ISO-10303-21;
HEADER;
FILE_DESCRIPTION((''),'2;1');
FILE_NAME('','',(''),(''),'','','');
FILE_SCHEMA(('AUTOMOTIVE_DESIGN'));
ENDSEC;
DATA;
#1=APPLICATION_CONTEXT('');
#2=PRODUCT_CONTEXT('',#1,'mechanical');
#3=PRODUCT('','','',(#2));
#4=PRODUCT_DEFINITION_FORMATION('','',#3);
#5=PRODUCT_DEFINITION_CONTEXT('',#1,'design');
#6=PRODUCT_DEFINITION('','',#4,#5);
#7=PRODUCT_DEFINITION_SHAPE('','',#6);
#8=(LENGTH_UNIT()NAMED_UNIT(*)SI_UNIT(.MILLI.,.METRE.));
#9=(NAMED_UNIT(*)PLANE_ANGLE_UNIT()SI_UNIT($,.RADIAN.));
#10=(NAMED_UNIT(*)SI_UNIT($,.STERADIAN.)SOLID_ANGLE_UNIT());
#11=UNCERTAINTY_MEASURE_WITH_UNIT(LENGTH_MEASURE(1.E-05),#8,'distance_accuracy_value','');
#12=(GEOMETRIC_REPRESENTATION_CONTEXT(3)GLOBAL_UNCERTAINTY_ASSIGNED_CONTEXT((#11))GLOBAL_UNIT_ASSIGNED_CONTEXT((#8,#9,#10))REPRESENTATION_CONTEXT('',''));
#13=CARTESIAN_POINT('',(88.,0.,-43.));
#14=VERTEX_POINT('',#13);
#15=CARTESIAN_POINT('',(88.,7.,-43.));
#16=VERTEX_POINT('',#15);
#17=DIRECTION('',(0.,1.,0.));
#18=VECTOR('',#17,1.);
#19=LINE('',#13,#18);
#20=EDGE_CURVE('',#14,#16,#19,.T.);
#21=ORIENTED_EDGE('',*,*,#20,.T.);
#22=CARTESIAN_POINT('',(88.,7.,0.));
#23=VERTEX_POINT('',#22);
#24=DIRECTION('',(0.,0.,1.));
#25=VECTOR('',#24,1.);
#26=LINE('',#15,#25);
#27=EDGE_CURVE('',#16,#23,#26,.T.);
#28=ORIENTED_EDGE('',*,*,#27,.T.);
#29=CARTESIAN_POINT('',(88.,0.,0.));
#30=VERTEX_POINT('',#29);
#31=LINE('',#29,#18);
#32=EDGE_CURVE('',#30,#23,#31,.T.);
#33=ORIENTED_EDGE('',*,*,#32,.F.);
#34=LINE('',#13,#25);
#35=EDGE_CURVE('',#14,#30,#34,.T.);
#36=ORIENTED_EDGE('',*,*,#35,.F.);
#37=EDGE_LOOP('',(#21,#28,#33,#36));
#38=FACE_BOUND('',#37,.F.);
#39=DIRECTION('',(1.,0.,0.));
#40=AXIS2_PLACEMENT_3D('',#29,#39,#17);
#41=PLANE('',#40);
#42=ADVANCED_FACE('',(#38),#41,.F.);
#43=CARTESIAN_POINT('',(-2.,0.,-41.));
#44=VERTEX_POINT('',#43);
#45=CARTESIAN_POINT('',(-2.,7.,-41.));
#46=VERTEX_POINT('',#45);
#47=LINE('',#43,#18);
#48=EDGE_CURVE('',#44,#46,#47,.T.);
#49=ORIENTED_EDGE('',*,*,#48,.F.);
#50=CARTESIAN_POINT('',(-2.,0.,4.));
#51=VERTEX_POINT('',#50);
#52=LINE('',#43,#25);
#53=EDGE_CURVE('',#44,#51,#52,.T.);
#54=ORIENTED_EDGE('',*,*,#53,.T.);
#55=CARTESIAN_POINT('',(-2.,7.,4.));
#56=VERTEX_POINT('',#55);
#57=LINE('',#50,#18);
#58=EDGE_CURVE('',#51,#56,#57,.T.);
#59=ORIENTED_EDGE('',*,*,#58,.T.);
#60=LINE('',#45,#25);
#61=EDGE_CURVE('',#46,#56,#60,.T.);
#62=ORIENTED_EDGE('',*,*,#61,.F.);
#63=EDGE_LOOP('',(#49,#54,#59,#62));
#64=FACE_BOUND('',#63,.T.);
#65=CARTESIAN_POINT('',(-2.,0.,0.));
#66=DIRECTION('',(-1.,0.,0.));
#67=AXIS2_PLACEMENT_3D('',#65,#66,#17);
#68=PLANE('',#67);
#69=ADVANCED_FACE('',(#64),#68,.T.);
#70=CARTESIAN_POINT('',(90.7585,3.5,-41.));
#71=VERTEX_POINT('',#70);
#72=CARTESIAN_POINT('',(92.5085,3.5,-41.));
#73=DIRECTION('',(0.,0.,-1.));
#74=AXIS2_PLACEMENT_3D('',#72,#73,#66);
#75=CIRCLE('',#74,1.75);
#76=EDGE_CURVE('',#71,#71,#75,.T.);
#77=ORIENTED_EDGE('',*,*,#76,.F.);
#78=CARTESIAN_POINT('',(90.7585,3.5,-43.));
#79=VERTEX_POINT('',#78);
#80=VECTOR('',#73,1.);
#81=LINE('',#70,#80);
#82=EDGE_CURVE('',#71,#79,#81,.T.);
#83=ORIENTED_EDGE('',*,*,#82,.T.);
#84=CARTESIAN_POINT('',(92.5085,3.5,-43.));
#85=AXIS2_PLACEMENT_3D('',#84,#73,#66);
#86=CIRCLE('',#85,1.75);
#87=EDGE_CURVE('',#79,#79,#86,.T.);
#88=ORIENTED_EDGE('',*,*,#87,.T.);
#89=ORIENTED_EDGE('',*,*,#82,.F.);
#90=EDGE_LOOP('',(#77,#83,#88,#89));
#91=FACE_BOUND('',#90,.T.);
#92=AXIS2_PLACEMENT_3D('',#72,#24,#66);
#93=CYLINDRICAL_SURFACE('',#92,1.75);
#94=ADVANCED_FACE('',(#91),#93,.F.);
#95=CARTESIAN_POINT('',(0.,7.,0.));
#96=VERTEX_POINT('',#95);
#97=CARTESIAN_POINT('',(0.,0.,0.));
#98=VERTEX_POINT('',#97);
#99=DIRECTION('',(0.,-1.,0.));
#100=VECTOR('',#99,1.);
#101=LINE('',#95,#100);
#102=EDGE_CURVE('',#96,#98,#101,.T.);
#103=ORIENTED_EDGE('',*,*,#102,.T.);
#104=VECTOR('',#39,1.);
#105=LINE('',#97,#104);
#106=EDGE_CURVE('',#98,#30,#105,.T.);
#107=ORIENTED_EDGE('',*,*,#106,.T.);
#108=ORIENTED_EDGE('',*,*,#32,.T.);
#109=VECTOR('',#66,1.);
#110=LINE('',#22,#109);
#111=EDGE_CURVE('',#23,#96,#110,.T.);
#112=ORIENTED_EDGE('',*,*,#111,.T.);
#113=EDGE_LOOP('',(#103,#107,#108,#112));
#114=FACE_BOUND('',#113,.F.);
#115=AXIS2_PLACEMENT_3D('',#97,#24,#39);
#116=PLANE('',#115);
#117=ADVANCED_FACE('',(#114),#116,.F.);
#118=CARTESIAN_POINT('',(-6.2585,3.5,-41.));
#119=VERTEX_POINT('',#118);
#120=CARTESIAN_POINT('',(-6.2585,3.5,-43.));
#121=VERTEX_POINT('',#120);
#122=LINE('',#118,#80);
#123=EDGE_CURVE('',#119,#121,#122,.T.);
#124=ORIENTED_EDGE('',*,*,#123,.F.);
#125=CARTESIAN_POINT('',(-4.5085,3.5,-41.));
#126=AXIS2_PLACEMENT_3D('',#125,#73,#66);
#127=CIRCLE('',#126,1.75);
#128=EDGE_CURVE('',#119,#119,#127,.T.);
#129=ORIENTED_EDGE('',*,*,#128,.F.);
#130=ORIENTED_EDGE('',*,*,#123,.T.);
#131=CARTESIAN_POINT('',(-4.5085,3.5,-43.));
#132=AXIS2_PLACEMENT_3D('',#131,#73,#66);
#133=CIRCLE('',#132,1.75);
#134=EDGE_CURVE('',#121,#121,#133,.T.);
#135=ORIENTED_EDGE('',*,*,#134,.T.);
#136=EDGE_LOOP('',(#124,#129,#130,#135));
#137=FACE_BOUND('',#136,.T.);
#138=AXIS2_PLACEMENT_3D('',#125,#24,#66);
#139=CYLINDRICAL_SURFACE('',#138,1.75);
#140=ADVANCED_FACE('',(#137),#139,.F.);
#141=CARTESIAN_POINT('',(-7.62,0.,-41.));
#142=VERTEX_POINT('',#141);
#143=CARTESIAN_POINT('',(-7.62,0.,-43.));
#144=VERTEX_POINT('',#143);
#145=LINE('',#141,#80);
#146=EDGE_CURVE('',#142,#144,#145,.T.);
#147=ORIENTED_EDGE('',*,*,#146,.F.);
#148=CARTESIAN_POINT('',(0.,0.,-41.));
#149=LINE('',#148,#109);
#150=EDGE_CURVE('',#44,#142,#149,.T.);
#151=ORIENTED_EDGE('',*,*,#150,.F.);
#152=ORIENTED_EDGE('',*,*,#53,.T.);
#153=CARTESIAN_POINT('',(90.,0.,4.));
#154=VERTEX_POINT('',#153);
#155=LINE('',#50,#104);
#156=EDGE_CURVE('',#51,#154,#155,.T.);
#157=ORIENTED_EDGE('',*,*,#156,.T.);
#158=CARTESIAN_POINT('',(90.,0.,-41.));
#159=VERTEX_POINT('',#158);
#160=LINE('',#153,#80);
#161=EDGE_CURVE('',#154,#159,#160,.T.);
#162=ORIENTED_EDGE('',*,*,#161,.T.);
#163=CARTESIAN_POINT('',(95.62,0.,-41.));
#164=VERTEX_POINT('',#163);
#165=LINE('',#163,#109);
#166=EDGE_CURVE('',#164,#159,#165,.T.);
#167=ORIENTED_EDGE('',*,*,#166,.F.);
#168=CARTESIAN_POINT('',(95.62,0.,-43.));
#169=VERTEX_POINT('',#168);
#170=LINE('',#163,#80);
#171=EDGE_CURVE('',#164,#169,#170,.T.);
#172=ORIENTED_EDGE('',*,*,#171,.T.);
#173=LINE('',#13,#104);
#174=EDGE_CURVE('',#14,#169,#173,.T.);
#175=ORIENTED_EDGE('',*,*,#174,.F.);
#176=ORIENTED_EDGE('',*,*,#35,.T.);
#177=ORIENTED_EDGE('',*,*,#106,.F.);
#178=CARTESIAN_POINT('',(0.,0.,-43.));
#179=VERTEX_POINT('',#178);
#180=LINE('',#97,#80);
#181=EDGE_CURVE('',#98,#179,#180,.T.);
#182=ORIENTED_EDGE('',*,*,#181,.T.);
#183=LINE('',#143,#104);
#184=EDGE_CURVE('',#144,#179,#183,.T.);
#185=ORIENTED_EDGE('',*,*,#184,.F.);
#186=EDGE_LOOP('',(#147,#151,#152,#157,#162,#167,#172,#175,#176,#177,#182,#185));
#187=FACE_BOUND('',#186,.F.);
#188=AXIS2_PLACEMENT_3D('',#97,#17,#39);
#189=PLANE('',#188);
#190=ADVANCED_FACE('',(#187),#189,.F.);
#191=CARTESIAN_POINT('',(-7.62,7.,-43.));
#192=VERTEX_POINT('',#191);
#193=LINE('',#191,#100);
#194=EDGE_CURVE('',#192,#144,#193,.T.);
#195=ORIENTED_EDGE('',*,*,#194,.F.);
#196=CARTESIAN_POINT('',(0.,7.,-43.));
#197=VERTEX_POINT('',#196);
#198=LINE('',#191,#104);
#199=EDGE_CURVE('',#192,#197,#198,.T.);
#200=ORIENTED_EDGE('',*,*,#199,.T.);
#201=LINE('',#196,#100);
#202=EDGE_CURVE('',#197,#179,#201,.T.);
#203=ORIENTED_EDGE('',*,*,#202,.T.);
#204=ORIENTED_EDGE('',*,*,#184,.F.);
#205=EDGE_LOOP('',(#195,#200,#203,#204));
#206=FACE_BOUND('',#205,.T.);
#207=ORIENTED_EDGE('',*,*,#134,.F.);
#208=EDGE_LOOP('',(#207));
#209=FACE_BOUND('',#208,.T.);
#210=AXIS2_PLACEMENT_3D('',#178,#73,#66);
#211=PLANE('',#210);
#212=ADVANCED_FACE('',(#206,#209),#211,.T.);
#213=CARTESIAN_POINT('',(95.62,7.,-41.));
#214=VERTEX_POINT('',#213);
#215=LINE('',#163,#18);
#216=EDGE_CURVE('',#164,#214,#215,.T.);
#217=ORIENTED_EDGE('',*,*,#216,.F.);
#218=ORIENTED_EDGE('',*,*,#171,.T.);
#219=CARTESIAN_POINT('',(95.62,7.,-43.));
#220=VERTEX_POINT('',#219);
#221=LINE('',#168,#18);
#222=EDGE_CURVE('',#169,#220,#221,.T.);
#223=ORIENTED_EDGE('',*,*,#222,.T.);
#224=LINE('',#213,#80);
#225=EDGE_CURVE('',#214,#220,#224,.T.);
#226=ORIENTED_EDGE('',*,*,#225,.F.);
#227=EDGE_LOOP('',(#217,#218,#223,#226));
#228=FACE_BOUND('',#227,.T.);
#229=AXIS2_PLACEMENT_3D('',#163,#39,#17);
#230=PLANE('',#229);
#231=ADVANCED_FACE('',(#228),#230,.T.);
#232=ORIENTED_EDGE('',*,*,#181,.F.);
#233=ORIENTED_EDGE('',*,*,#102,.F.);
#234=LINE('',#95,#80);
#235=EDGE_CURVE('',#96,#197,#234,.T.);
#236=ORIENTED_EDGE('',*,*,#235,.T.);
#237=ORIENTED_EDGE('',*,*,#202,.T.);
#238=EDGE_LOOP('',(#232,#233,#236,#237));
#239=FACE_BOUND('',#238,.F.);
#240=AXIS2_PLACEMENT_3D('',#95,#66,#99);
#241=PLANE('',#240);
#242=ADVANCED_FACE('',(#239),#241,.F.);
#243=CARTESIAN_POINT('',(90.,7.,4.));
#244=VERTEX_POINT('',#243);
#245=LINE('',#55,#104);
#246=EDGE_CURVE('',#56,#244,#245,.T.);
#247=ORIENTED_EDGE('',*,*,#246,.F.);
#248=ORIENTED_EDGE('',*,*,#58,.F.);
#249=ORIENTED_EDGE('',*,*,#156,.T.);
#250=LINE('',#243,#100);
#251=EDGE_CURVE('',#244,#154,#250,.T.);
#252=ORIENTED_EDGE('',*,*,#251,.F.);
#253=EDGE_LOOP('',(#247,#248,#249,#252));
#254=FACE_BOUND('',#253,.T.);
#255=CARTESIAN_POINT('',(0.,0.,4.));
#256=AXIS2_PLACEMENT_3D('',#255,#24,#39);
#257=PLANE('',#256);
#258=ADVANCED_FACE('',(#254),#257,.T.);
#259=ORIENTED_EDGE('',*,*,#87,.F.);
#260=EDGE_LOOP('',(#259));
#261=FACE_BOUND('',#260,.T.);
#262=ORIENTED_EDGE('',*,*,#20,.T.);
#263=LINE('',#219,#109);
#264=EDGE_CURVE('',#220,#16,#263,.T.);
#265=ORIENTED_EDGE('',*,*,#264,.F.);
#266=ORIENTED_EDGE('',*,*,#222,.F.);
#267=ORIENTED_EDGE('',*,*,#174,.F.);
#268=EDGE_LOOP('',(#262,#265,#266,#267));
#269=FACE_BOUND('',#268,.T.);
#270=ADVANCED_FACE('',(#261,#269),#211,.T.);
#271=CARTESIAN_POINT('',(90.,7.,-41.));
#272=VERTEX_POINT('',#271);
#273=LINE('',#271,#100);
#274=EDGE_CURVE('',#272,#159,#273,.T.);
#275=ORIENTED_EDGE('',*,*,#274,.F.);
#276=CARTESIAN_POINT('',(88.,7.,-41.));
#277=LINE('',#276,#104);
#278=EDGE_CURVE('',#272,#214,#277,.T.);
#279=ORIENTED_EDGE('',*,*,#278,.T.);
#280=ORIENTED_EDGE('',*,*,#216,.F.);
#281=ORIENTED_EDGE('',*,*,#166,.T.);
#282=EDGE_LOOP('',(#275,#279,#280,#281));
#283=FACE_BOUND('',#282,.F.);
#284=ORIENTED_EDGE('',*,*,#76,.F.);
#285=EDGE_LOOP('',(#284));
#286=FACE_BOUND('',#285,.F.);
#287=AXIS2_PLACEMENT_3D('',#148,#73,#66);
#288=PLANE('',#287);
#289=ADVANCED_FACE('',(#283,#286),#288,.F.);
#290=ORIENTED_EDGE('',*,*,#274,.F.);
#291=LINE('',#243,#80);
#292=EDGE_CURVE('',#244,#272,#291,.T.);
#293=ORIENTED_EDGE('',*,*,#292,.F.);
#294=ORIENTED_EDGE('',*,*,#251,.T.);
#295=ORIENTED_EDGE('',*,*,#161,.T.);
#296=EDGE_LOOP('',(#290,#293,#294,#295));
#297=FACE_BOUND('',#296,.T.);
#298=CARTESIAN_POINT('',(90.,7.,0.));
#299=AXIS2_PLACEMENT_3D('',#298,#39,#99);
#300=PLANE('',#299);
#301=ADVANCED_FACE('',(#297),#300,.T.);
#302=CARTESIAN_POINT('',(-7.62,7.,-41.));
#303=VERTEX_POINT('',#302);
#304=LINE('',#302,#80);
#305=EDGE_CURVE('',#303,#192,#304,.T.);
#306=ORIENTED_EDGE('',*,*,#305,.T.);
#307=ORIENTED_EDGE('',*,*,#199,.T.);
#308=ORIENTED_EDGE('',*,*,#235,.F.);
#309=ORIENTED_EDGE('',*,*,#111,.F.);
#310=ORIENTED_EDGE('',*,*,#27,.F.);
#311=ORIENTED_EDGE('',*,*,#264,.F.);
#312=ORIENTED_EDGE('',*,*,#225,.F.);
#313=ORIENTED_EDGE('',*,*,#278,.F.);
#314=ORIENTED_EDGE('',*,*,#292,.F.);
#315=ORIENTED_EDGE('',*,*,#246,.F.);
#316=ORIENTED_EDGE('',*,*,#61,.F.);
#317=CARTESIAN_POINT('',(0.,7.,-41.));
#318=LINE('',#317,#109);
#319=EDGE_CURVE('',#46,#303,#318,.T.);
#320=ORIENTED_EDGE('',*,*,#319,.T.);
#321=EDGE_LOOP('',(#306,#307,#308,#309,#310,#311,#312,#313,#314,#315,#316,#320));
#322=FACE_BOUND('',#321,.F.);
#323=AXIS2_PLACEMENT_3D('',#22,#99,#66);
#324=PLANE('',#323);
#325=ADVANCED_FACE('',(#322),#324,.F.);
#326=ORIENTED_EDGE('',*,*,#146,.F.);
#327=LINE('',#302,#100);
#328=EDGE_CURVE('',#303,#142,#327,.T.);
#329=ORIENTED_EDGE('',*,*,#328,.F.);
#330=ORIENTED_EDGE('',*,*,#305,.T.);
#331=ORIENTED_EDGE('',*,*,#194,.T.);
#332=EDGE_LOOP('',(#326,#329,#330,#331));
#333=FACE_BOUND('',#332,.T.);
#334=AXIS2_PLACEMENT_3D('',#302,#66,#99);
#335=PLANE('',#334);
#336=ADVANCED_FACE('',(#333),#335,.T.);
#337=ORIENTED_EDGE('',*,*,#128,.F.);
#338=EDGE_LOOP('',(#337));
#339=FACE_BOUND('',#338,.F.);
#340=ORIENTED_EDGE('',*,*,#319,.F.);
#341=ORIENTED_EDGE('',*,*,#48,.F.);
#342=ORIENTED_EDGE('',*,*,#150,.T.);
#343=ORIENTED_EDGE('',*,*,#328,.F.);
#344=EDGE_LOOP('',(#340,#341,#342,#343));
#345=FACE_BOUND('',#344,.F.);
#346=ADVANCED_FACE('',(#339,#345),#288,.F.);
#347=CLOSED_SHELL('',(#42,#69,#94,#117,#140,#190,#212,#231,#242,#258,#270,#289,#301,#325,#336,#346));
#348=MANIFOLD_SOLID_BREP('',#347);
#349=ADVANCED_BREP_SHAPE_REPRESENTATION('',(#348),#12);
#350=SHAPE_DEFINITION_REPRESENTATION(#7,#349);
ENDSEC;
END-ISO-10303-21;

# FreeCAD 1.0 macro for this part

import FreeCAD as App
import Part
import Sketcher

doc = App.newDocument("Part")
body = doc.addObject("PartDesign::Body", "Body")
body.AllowCompound = True

sketch1 = doc.addObject("Sketcher::SketchObject", "Sketch")
body.addObject(sketch1)
sketch1.AttachmentSupport = (doc.XY_Plane, [""])
sketch1.MapMode = "FlatFace"
sketch1.addGeometry([
    Part.LineSegment(App.Vector(0, 7, 0), App.Vector(0, 0, 0)),
    Part.LineSegment(App.Vector(0, 0, 0), App.Vector(88, 0, 0)),
    Part.LineSegment(App.Vector(88, 0, 0), App.Vector(88, 7, 0)),
    Part.LineSegment(App.Vector(88, 7, 0), App.Vector(0, 7, 0)),
], False)
sketch1.addConstraint([
    Sketcher.Constraint("Coincident", 0, 2, 1, 1),
    Sketcher.Constraint("Coincident", 1, 2, 2, 1),
    Sketcher.Constraint("Coincident", 2, 2, 3, 1),
    Sketcher.Constraint("Coincident", 3, 2, 0, 1),
    Sketcher.Constraint("Vertical", 0),
    Sketcher.Constraint("Horizontal", 1),
    Sketcher.Constraint("Vertical", 2),
    Sketcher.Constraint("Horizontal", 3),
    Sketcher.Constraint("Coincident", 0, 2, -1, 1),
    Sketcher.Constraint("DistanceX", 1, 1, 1, 2, 88.0),
    Sketcher.Constraint("DistanceY", 0, 2, 0, 1, 7.0),
])
pad1 = doc.addObject("PartDesign::Pad", "Pad")
body.addObject(pad1)
pad1.Profile = sketch1
pad1.Length = 4

sketch2 = doc.addObject("Sketcher::SketchObject", "Sketch001")
body.addObject(sketch2)
sketch2.AttachmentSupport = (doc.XY_Plane, [""])
sketch2.MapMode = "FlatFace"
sketch2.addGeometry([
    Part.LineSegment(App.Vector(0, 7, 0), App.Vector(0, 0, 0)),
    Part.LineSegment(App.Vector(0, 0, 0), App.Vector(-2, 0, 0)),
    Part.LineSegment(App.Vector(-2, 0, 0), App.Vector(-2, 7, 0)),
    Part.LineSegment(App.Vector(-2, 7, 0), App.Vector(0, 7, 0)),
    Part.LineSegment(App.Vector(90, 0, 0), App.Vector(88, 0, 0)),
    Part.LineSegment(App.Vector(88, 0, 0), App.Vector(88, 7, 0)),
    Part.LineSegment(App.Vector(88, 7, 0), App.Vector(90, 7, 0)),
    Part.LineSegment(App.Vector(90, 7, 0), App.Vector(90, 0, 0)),
], False)
sketch2.addConstraint([
    Sketcher.Constraint("Coincident", 0, 2, 1, 1),
    Sketcher.Constraint("Coincident", 1, 2, 2, 1),
    Sketcher.Constraint("Coincident", 2, 2, 3, 1),
    Sketcher.Constraint("Coincident", 3, 2, 0, 1),
    Sketcher.Constraint("Coincident", 4, 2, 5, 1),
    Sketcher.Constraint("Coincident", 5, 2, 6, 1),
    Sketcher.Constraint("Coincident", 6, 2, 7, 1),
    Sketcher.Constraint("Coincident", 7, 2, 4, 1),
    Sketcher.Constraint("Vertical", 0),
    Sketcher.Constraint("Horizontal", 1),
    Sketcher.Constraint("Vertical", 2),
    Sketcher.Constraint("Horizontal", 3),
    Sketcher.Constraint("Horizontal", 4),
    Sketcher.Constraint("Vertical", 5),
    Sketcher.Constraint("Horizontal", 6),
    Sketcher.Constraint("Vertical", 7),
    Sketcher.Constraint("Coincident", 0, 2, -1, 1),
    Sketcher.Constraint("PointOnObject", 4, 2, -1),
    Sketcher.Constraint("Horizontal", 3, 2, 5, 2),
    Sketcher.Constraint("Equal", 3, 4),
    Sketcher.Constraint("DistanceX", 1, 2, 1, 1, 2.0),
    Sketcher.Constraint("DistanceY", 0, 2, 0, 1, 7.0),
    Sketcher.Constraint("DistanceX", -1, 1, 4, 2, 88.0),
])
pad2 = doc.addObject("PartDesign::Pad", "Pad001")
body.addObject(pad2)
pad2.Profile = sketch2
pad2.Length = 41
pad2.Reversed = True

sketch3 = doc.addObject("Sketcher::SketchObject", "Sketch002")
body.addObject(sketch3)
sketch3.AttachmentSupport = (doc.XY_Plane, [""])
sketch3.MapMode = "FlatFace"
sketch3.addGeometry([
    Part.LineSegment(App.Vector(0, 7, 0), App.Vector(0, 0, 0)),
    Part.LineSegment(App.Vector(0, 0, 0), App.Vector(-2, 0, 0)),
    Part.LineSegment(App.Vector(-2, 0, 0), App.Vector(-2, 7, 0)),
    Part.LineSegment(App.Vector(-2, 7, 0), App.Vector(0, 7, 0)),
    Part.LineSegment(App.Vector(90, 0, 0), App.Vector(88, 0, 0)),
    Part.LineSegment(App.Vector(88, 0, 0), App.Vector(88, 7, 0)),
    Part.LineSegment(App.Vector(88, 7, 0), App.Vector(90, 7, 0)),
    Part.LineSegment(App.Vector(90, 7, 0), App.Vector(90, 0, 0)),
], False)
sketch3.addConstraint([
    Sketcher.Constraint("Coincident", 0, 2, 1, 1),
    Sketcher.Constraint("Coincident", 1, 2, 2, 1),
    Sketcher.Constraint("Coincident", 2, 2, 3, 1),
    Sketcher.Constraint("Coincident", 3, 2, 0, 1),
    Sketcher.Constraint("Coincident", 4, 2, 5, 1),
    Sketcher.Constraint("Coincident", 5, 2, 6, 1),
    Sketcher.Constraint("Coincident", 6, 2, 7, 1),
    Sketcher.Constraint("Coincident", 7, 2, 4, 1),
    Sketcher.Constraint("Vertical", 0),
    Sketcher.Constraint("Horizontal", 1),
    Sketcher.Constraint("Vertical", 2),
    Sketcher.Constraint("Horizontal", 3),
    Sketcher.Constraint("Horizontal", 4),
    Sketcher.Constraint("Vertical", 5),
    Sketcher.Constraint("Horizontal", 6),
    Sketcher.Constraint("Vertical", 7),
    Sketcher.Constraint("Coincident", 0, 2, -1, 1),
    Sketcher.Constraint("PointOnObject", 4, 2, -1),
    Sketcher.Constraint("Horizontal", 3, 2, 5, 2),
    Sketcher.Constraint("Equal", 3, 4),
    Sketcher.Constraint("DistanceX", 1, 2, 1, 1, 2.0),
    Sketcher.Constraint("DistanceY", 0, 2, 0, 1, 7.0),
    Sketcher.Constraint("DistanceX", -1, 1, 4, 2, 88.0),
])
pad3 = doc.addObject("PartDesign::Pad", "Pad002")
body.addObject(pad3)
pad3.Profile = sketch3
pad3.Length = 4

sketch4 = doc.addObject("Sketcher::SketchObject", "Sketch003")
body.addObject(sketch4)
sketch4.AttachmentSupport = (doc.XY_Plane, [""])
sketch4.MapMode = "FlatFace"
sketch4.AttachmentOffset = App.Placement(App.Vector(0, 0, -41), App.Rotation())
sketch4.addGeometry([
    Part.LineSegment(App.Vector(88, 0, 0), App.Vector(88, 7, 0)),
    Part.LineSegment(App.Vector(88, 7, 0), App.Vector(95.6, 7, 0)),
    Part.LineSegment(App.Vector(95.6, 7, 0), App.Vector(95.6, 0, 0)),
    Part.LineSegment(App.Vector(95.6, 0, 0), App.Vector(88, 0, 0)),
    Part.Circle(App.Vector(92.5, 3.5, 0), App.Vector(0, 0, 1), 1.8),
    Part.LineSegment(App.Vector(0, 0, 0), App.Vector(-7.6, 0, 0)),
    Part.LineSegment(App.Vector(-7.6, 0, 0), App.Vector(-7.6, 7, 0)),
    Part.LineSegment(App.Vector(-7.6, 7, 0), App.Vector(0, 7, 0)),
    Part.LineSegment(App.Vector(0, 7, 0), App.Vector(0, 0, 0)),
    Part.Circle(App.Vector(-4.5, 3.5, 0), App.Vector(0, 0, 1), 1.8),
], False)
sketch4.addConstraint([
    Sketcher.Constraint("Coincident", 0, 2, 1, 1),
    Sketcher.Constraint("Coincident", 1, 2, 2, 1),
    Sketcher.Constraint("Coincident", 2, 2, 3, 1),
    Sketcher.Constraint("Coincident", 3, 2, 0, 1),
    Sketcher.Constraint("Coincident", 5, 2, 6, 1),
    Sketcher.Constraint("Coincident", 6, 2, 7, 1),
    Sketcher.Constraint("Coincident", 7, 2, 8, 1),
    Sketcher.Constraint("Coincident", 8, 2, 5, 1),
    Sketcher.Constraint("Vertical", 0),
    Sketcher.Constraint("Horizontal", 1),
    Sketcher.Constraint("Vertical", 2),
    Sketcher.Constraint("Horizontal", 3),
    Sketcher.Constraint("Horizontal", 5),
    Sketcher.Constraint("Vertical", 6),
    Sketcher.Constraint("Horizontal", 7),
    Sketcher.Constraint("Vertical", 8),
    Sketcher.Constraint("Coincident", 8, 2, -1, 1),
    Sketcher.Constraint("Equal", 4, 9),
    Sketcher.Constraint("PointOnObject", 2, 2, -1),
    Sketcher.Constraint("Horizontal", 4, 3, 9, 3),
    Sketcher.Constraint("Horizontal", 1, 2, 6, 2),
    Sketcher.Constraint("Equal", 3, 5),
    Sketcher.Constraint("Diameter", 4, 3.5),
    Sketcher.Constraint("DistanceX", 1, 1, 1, 2, 7.62),
    Sketcher.Constraint("DistanceY", -1, 1, 4, 3, 3.5),
    Sketcher.Constraint("DistanceY", 4, 3, 0, 2, 3.5),
    Sketcher.Constraint("DistanceX", -1, 1, 0, 2, 88.0),
    Sketcher.Constraint("DistanceX", 9, 3, 4, 3, 97.017),
    Sketcher.Constraint("DistanceX", -1, 1, 4, 3, 92.5085),
])
pad4 = doc.addObject("PartDesign::Pad", "Pad003")
body.addObject(pad4)
pad4.Profile = sketch4
pad4.Length = 2
pad4.Reversed = True

doc.recompute()
